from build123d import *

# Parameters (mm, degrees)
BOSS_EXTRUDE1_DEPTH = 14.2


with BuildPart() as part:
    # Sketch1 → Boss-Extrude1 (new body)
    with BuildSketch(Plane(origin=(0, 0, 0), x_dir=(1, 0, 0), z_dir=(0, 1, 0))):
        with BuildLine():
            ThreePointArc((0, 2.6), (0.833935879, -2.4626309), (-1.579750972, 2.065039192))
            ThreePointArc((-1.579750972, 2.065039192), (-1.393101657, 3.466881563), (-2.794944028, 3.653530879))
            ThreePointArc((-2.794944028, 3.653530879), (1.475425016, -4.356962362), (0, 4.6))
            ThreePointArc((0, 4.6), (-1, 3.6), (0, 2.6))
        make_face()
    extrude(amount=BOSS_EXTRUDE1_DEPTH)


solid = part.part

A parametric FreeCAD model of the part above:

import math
import FreeCAD as App
import Part
import Sketcher
from FreeCAD import Vector
Q = App.Units.Quantity

doc = App.newDocument("Part")
body = doc.addObject("PartDesign::Body", "Body")

# Sketch on XZ plane
sketch1 = body.newObject("Sketcher::SketchObject", "Sketch")
sketch1.AttachmentSupport = (doc.getObject("XZ_Plane"), [""])
sketch1.MapMode = "FlatFace"
sketch1.addGeometry(Part.ArcOfCircle(Part.Circle(Vector(0, 0, 0), Vector(0, 0, 1), 2.6), math.radians(-90), math.radians(232.584082)), False)
sketch1.addGeometry(Part.ArcOfCircle(Part.Circle(Vector(-2.187348, -2.859285, 0), Vector(0, 0, 1), 1), math.radians(-127.415918), math.radians(52.584082)), False)
sketch1.addGeometry(Part.ArcOfCircle(Part.Circle(Vector(0, 0, 0), Vector(0, 0, 1), 4.6), math.radians(-90), math.radians(232.584082)), False)
sketch1.addGeometry(Part.ArcOfCircle(Part.Circle(Vector(0, -3.6, 0), Vector(0, 0, 1), 1), math.radians(90), math.radians(270)), False)
sketch1.addConstraint(Sketcher.Constraint("Tangent", 0, 2, 1, 2))
sketch1.addConstraint(Sketcher.Constraint("Tangent", 1, 1, 2, 2))
sketch1.addConstraint(Sketcher.Constraint("Tangent", 2, 1, 3, 2))
sketch1.addConstraint(Sketcher.Constraint("Tangent", 3, 1, 0, 1))
sketch1.addConstraint(Sketcher.Constraint("Coincident", 0, 3, -1, 1))
sketch1.addConstraint(Sketcher.Constraint("Coincident", 2, 3, -1, 1))
sketch1.addConstraint(Sketcher.Constraint("PointOnObject", 3, 3, -2))
sketch1.addConstraint(Sketcher.Constraint("Radius", 1, Q("1 mm")))
sketch1.addConstraint(Sketcher.Constraint("Radius", 0, Q("2.6 mm")))
sketch1.addConstraint(Sketcher.Constraint("DistanceX", 0, 2, -1, 1, Q("1.579751 mm")))
pad1 = body.newObject("PartDesign::Pad", "Pad")
pad1.Profile = sketch1
pad1.Length = 14.2
pad1.Reversed = True

doc.recompute()
